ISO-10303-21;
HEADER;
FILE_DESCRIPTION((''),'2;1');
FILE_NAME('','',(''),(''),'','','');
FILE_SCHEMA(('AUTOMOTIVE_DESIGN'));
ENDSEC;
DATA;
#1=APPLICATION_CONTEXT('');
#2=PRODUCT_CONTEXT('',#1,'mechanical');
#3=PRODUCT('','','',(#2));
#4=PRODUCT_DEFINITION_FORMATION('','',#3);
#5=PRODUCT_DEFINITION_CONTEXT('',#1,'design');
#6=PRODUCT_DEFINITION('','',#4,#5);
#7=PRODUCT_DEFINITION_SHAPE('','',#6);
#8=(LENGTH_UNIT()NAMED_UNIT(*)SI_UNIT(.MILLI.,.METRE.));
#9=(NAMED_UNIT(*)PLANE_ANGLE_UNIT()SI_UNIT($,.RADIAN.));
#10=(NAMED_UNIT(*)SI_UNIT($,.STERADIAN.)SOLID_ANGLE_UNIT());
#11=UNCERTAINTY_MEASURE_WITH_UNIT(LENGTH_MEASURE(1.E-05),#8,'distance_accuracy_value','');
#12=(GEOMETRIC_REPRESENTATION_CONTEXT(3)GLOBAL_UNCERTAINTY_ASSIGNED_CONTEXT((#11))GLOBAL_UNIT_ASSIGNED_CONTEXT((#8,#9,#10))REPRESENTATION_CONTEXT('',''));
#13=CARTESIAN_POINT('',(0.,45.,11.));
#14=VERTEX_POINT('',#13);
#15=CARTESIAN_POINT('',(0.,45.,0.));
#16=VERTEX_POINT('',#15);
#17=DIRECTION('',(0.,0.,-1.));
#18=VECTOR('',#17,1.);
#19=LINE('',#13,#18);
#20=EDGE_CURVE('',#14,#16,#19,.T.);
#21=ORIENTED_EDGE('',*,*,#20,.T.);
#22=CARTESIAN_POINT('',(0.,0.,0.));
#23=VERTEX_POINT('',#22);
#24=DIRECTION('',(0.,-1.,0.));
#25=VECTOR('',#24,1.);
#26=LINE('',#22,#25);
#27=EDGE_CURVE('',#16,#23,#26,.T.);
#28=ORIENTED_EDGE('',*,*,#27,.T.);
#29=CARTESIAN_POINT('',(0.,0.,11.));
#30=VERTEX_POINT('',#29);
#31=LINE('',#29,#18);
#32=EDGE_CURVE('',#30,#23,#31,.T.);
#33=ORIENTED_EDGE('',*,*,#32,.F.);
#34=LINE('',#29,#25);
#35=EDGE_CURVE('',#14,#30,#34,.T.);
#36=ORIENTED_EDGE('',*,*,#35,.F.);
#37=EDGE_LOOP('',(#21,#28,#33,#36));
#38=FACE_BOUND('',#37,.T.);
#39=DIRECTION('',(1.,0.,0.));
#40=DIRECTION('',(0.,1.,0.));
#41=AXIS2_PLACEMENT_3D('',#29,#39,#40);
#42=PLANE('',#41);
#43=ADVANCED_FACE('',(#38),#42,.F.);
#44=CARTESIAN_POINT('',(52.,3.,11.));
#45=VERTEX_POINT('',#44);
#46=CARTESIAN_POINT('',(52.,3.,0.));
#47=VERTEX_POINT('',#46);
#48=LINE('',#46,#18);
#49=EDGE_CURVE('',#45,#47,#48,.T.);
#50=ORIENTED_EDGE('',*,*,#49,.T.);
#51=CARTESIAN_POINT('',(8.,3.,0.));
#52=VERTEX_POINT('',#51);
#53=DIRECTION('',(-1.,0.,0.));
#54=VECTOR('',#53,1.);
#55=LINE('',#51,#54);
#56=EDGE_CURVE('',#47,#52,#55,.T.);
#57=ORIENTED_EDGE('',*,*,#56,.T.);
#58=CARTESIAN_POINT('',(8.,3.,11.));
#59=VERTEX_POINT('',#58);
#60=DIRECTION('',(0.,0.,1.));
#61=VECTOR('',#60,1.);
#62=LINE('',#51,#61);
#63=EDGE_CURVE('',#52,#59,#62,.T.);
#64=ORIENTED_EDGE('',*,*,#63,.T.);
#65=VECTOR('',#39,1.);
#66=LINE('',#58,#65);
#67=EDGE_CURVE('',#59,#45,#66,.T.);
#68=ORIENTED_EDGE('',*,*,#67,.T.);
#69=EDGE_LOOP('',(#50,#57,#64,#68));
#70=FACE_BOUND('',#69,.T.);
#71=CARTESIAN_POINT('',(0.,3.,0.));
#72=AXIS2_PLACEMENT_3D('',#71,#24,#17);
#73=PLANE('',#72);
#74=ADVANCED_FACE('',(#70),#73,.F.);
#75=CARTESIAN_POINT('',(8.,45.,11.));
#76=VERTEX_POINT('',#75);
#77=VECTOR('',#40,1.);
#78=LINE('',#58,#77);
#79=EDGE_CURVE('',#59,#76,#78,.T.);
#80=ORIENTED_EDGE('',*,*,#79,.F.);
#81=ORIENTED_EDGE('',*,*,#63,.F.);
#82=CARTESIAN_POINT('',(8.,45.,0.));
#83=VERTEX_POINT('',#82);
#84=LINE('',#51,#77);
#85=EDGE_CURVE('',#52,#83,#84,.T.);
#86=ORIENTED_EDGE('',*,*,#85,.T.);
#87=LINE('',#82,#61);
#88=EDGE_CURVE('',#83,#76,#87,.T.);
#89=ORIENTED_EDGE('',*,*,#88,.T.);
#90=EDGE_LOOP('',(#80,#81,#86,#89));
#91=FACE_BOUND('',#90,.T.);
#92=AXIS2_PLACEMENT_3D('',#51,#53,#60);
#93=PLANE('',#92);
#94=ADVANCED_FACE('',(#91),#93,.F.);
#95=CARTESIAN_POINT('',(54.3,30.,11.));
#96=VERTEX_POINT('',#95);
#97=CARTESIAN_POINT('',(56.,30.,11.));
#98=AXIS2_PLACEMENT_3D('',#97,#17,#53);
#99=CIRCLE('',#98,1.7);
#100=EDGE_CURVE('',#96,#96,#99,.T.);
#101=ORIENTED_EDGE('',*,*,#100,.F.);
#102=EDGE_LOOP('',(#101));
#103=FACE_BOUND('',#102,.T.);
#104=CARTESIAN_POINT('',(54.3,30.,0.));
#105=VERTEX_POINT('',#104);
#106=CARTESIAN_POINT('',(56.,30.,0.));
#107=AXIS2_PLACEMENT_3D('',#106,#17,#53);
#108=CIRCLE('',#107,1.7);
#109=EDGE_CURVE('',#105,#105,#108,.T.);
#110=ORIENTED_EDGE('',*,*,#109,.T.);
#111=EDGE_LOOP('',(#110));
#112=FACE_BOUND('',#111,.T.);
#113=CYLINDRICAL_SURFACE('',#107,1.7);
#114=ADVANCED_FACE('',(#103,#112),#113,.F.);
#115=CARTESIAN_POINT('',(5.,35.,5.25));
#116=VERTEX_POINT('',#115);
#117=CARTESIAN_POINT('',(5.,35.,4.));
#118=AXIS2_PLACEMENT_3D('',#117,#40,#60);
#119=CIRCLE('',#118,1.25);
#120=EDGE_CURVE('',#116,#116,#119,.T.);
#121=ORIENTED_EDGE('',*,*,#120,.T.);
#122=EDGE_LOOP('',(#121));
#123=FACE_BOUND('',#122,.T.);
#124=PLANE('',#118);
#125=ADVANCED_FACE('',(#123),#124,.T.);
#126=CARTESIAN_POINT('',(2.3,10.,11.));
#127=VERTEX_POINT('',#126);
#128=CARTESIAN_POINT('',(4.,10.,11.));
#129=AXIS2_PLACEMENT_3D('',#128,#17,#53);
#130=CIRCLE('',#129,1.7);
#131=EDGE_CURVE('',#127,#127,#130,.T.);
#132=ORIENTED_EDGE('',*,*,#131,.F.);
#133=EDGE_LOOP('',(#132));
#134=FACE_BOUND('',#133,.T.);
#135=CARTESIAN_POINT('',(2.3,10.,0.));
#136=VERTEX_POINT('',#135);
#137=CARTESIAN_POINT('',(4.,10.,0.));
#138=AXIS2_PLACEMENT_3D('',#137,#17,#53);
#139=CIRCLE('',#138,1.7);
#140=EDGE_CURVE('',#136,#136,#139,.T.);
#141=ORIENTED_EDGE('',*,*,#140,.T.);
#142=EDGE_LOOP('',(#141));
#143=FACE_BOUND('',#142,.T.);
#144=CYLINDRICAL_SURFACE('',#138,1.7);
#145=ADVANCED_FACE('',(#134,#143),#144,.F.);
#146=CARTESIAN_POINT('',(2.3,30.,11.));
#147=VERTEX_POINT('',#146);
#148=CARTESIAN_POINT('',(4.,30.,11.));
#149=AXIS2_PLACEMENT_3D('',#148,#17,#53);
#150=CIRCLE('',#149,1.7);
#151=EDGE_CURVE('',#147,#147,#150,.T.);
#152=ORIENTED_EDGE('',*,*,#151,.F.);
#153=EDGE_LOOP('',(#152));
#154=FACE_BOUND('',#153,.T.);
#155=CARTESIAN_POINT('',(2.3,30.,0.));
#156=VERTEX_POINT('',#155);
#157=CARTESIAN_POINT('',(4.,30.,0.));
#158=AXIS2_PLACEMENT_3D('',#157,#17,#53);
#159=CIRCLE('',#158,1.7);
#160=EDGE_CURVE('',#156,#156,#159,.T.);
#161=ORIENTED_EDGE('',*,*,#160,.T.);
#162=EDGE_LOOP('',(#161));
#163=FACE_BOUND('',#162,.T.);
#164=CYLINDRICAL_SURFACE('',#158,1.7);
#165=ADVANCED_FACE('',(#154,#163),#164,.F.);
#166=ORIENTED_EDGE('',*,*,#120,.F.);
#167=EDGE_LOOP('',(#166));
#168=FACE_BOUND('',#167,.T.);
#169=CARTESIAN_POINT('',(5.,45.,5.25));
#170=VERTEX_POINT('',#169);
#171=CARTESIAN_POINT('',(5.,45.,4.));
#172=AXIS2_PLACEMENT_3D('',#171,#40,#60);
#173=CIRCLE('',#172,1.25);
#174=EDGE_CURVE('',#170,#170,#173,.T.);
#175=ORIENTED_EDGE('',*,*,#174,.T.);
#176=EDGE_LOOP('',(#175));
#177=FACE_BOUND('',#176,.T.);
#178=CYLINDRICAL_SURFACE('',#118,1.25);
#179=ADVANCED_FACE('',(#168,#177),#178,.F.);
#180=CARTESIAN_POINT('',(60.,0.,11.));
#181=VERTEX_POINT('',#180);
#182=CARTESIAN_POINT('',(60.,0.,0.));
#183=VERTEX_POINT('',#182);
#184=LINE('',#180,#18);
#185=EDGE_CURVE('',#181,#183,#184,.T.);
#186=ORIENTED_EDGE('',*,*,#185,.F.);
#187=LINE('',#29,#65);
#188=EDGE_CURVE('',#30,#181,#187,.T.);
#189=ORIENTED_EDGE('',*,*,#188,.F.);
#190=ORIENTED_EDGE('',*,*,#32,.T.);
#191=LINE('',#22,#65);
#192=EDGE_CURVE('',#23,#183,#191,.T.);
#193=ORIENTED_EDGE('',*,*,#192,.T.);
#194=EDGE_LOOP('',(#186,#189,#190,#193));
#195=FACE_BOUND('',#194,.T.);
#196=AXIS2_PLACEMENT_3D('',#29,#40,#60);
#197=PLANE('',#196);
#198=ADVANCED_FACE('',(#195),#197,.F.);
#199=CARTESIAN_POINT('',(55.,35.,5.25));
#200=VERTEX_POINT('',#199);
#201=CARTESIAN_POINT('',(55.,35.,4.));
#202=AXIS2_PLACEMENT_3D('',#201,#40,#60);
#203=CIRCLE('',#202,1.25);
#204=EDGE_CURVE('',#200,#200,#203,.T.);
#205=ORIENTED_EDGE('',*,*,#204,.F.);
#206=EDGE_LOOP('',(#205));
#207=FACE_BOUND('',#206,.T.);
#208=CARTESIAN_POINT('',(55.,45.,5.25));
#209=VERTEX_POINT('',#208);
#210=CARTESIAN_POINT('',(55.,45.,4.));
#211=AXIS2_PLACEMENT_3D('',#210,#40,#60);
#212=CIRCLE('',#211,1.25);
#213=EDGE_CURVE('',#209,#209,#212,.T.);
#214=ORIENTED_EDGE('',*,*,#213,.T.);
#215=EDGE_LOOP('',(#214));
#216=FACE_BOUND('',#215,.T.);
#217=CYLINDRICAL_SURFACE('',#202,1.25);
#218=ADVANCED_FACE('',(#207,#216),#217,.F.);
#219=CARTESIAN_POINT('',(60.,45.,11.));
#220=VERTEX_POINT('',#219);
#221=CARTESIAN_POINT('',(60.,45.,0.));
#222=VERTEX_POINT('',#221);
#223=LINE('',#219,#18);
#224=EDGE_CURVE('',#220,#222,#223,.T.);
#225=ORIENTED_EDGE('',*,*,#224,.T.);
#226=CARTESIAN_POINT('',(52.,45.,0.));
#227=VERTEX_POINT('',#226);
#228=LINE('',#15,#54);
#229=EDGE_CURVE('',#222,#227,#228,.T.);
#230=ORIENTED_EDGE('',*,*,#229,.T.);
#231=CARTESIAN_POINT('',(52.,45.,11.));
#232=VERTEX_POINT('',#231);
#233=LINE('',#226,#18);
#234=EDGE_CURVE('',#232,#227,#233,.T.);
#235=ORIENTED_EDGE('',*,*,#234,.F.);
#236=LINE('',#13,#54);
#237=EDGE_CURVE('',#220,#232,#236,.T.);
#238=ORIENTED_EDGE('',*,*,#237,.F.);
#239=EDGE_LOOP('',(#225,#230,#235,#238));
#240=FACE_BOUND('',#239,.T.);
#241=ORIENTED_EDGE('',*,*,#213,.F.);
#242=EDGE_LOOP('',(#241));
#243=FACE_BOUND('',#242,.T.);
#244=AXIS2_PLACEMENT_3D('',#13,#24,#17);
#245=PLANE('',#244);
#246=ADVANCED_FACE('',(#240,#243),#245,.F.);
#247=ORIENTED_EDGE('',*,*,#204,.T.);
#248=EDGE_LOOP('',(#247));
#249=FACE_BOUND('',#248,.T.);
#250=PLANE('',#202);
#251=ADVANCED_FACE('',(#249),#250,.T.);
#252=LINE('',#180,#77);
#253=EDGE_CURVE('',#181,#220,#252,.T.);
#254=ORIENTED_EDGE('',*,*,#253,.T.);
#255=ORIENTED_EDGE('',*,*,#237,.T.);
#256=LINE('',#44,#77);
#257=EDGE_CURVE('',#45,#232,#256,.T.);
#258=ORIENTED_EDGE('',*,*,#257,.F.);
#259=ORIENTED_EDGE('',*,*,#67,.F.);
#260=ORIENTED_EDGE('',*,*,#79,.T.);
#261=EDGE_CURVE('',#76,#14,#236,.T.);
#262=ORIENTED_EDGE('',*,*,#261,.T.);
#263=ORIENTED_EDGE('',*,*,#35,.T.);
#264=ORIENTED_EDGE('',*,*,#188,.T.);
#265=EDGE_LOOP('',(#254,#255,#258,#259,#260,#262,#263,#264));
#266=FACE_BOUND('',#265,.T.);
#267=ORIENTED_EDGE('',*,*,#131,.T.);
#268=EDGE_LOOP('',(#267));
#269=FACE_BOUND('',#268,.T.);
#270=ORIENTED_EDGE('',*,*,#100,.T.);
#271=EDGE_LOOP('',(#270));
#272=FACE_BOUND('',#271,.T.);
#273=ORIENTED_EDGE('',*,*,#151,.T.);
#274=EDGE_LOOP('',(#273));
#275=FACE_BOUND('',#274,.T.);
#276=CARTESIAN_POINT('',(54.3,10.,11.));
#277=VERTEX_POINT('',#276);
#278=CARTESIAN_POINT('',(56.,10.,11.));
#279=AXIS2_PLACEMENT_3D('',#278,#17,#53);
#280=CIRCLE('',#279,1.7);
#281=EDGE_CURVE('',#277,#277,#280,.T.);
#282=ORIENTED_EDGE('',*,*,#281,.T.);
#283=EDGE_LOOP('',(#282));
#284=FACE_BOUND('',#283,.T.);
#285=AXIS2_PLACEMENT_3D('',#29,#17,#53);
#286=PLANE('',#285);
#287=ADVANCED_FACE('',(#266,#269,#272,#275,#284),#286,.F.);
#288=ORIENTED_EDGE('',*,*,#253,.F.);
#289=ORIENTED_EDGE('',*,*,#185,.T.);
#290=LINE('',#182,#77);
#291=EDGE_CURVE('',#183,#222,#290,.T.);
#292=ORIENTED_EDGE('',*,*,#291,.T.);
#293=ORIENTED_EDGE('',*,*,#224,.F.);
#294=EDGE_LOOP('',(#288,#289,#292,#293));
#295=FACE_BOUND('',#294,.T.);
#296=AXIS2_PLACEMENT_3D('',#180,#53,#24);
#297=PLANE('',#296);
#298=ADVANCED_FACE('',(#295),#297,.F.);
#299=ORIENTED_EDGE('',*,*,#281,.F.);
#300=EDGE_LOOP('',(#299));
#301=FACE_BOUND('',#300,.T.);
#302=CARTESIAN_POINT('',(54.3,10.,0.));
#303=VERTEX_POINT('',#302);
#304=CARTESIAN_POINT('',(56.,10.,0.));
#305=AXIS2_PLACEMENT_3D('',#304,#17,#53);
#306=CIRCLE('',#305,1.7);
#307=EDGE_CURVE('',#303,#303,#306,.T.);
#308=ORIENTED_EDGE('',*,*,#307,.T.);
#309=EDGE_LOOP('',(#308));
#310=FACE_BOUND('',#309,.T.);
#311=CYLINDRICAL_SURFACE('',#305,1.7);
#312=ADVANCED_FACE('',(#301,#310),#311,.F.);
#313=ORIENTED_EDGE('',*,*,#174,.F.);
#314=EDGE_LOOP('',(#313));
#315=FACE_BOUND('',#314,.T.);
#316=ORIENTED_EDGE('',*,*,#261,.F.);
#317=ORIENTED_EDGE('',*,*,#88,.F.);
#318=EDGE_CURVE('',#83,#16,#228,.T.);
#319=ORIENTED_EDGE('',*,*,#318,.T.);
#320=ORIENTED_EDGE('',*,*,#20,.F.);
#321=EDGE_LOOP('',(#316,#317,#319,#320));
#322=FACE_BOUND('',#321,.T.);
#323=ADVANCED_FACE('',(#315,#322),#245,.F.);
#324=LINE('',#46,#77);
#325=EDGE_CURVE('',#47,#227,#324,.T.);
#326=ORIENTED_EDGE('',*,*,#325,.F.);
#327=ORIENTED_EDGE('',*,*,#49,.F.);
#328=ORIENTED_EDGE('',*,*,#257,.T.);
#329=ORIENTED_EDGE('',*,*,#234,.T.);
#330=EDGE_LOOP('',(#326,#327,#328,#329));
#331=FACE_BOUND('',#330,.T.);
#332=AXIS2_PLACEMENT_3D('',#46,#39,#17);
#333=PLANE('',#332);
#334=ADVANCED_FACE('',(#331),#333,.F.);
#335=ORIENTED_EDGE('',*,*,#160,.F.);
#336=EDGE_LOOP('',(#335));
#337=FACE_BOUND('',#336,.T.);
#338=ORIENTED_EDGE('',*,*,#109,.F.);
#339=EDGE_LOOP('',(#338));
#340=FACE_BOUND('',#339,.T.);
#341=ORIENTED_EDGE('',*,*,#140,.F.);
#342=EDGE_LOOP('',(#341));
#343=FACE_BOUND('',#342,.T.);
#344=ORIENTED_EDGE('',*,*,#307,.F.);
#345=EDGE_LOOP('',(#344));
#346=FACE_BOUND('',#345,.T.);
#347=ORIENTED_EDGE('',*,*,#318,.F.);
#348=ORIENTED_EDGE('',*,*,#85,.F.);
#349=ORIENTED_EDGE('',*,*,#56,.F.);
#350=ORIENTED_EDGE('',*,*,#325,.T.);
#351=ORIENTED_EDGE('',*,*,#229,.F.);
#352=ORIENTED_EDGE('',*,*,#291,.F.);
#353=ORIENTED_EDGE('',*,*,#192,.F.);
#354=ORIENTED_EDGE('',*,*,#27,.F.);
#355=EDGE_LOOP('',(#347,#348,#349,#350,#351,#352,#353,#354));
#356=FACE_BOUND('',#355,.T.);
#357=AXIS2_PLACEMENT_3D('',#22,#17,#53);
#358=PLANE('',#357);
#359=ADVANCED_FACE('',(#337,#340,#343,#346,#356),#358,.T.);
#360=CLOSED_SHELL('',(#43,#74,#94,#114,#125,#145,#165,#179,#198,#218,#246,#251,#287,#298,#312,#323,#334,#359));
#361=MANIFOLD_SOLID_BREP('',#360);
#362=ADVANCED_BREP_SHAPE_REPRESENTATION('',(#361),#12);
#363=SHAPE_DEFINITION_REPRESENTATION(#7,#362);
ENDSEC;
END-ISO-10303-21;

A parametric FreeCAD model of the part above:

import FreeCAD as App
import Part
import Sketcher

V = App.Vector


def add_polygon(sketch, points):
    """Adds a closed chain of lines whose ends are joined by coincident constraints."""
    first, n = sketch.GeometryCount, len(points)
    for a, b in zip(points, points[1:] + points[:1]):
        sketch.addGeometry(Part.LineSegment(App.Vector(*a, 0), App.Vector(*b, 0)), False)
    for i in range(n):
        sketch.addConstraint(Sketcher.Constraint("Coincident", first + i, 2, first + (i + 1) % n, 1))

doc = App.newDocument("Part")
body = doc.addObject("PartDesign::Body", "Body")

# Sketch on XY plane
sketch1 = doc.addObject("Sketcher::SketchObject", "Sketch")
body.addObject(sketch1)
sketch1.AttachmentSupport = (doc.XY_Plane, [""])
sketch1.MapMode = "FlatFace"
add_polygon(sketch1, [(0, 45), (0, 0), (60, 0), (60, 45)])  # lines 0-3
sketch1.addConstraint([
    Sketcher.Constraint("Vertical", 0),
    Sketcher.Constraint("Horizontal", 1),
    Sketcher.Constraint("Vertical", 2),
    Sketcher.Constraint("Horizontal", 3),
    Sketcher.Constraint("Coincident", 0, 2, -1, 1),
    Sketcher.Constraint("DistanceX", 1, 1, 1, 2, 60.0),
    Sketcher.Constraint("DistanceY", 0, 2, 0, 1, 45.0),
])
pad1 = doc.addObject("PartDesign::Pad", "Pad")
body.addObject(pad1)
pad1.Profile = sketch1
pad1.Length = 11

# Sketch on XZ plane
sketch2 = doc.addObject("Sketcher::SketchObject", "Sketch001")
body.addObject(sketch2)
sketch2.AttachmentSupport = (doc.XZ_Plane, [""])
sketch2.MapMode = "FlatFace"
sketch2.AttachmentOffset = App.Placement(V(0, 0, -45), App.Rotation())
add_polygon(sketch2, [(8, 0), (8, 11), (52, 11), (52, 0)])  # lines 0-3
sketch2.addConstraint([
    Sketcher.Constraint("Vertical", 0),
    Sketcher.Constraint("Horizontal", 1),
    Sketcher.Constraint("Vertical", 2),
    Sketcher.Constraint("Horizontal", 3),
    Sketcher.Constraint("PointOnObject", 2, 2, -1),
    Sketcher.Constraint("DistanceX", 1, 1, 1, 2, 44.0),
    Sketcher.Constraint("DistanceY", 0, 1, 0, 2, 11.0),
    Sketcher.Constraint("DistanceX", -1, 1, 0, 2, 8.0),
])
pocket1 = doc.addObject("PartDesign::Pocket", "Pocket")
body.addObject(pocket1)
pocket1.Profile = sketch2
pocket1.Length = 42
pocket1.Reversed = True

# Sketch on XZ plane
sketch3 = doc.addObject("Sketcher::SketchObject", "Sketch002")
body.addObject(sketch3)
sketch3.AttachmentSupport = (doc.XZ_Plane, [""])
sketch3.MapMode = "FlatFace"
sketch3.AttachmentOffset = App.Placement(V(0, 0, -45), App.Rotation())
sketch3.addGeometry([
    Part.Circle(V(5, 4, 0), V(0, 0, 1), 1.2),
    Part.Circle(V(55, 4, 0), V(0, 0, 1), 1.2),
], False)
sketch3.addConstraint([
    Sketcher.Constraint("Equal", 0, 1),
    Sketcher.Constraint("Horizontal", 0, 3, 1, 3),
    Sketcher.Constraint("Diameter", 0, 2.5),
    Sketcher.Constraint("DistanceX", -1, 1, 0, 3, 5.0),
    Sketcher.Constraint("DistanceY", -1, 1, 0, 3, 4.0),
    Sketcher.Constraint("DistanceX", -1, 1, 1, 3, 55.0),
])
pocket2 = doc.addObject("PartDesign::Pocket", "Pocket001")
body.addObject(pocket2)
pocket2.Profile = sketch3
pocket2.Length = 10
pocket2.Reversed = True

# Sketch on XY plane
sketch4 = doc.addObject("Sketcher::SketchObject", "Sketch003")
body.addObject(sketch4)
sketch4.AttachmentSupport = (doc.XY_Plane, [""])
sketch4.MapMode = "FlatFace"
sketch4.addGeometry([
    Part.Circle(V(4, 30, 0), V(0, 0, 1), 1.7),
    Part.Circle(V(4, 10, 0), V(0, 0, 1), 1.7),
    Part.Circle(V(56, 10, 0), V(0, 0, 1), 1.7),
    Part.Circle(V(56, 30, 0), V(0, 0, 1), 1.7),
], False)
sketch4.addConstraint([
    Sketcher.Constraint("Equal", 0, 1),
    Sketcher.Constraint("Equal", 1, 2),
    Sketcher.Constraint("Equal", 2, 3),
    Sketcher.Constraint("Horizontal", 1, 3, 2, 3),
    Sketcher.Constraint("Horizontal", 0, 3, 3, 3),
    Sketcher.Constraint("Vertical", 0, 3, 1, 3),
    Sketcher.Constraint("Vertical", 2, 3, 3, 3),
    Sketcher.Constraint("Diameter", 0, 3.4),
    Sketcher.Constraint("DistanceX", -1, 1, 0, 3, 4.0),
    Sketcher.Constraint("DistanceY", -1, 1, 0, 3, 30.0),
    Sketcher.Constraint("DistanceY", -1, 1, 1, 3, 10.0),
    Sketcher.Constraint("DistanceX", -1, 1, 2, 3, 56.0),
])
doc.recompute()
hole = doc.addObject("PartDesign::Hole", "Hole")
body.addObject(hole)
hole.Profile = sketch4
hole.ThreadType = "None"
hole.Diameter = 3.4
hole.DepthType = "ThroughAll"
hole.Reversed = True

doc.recompute()
